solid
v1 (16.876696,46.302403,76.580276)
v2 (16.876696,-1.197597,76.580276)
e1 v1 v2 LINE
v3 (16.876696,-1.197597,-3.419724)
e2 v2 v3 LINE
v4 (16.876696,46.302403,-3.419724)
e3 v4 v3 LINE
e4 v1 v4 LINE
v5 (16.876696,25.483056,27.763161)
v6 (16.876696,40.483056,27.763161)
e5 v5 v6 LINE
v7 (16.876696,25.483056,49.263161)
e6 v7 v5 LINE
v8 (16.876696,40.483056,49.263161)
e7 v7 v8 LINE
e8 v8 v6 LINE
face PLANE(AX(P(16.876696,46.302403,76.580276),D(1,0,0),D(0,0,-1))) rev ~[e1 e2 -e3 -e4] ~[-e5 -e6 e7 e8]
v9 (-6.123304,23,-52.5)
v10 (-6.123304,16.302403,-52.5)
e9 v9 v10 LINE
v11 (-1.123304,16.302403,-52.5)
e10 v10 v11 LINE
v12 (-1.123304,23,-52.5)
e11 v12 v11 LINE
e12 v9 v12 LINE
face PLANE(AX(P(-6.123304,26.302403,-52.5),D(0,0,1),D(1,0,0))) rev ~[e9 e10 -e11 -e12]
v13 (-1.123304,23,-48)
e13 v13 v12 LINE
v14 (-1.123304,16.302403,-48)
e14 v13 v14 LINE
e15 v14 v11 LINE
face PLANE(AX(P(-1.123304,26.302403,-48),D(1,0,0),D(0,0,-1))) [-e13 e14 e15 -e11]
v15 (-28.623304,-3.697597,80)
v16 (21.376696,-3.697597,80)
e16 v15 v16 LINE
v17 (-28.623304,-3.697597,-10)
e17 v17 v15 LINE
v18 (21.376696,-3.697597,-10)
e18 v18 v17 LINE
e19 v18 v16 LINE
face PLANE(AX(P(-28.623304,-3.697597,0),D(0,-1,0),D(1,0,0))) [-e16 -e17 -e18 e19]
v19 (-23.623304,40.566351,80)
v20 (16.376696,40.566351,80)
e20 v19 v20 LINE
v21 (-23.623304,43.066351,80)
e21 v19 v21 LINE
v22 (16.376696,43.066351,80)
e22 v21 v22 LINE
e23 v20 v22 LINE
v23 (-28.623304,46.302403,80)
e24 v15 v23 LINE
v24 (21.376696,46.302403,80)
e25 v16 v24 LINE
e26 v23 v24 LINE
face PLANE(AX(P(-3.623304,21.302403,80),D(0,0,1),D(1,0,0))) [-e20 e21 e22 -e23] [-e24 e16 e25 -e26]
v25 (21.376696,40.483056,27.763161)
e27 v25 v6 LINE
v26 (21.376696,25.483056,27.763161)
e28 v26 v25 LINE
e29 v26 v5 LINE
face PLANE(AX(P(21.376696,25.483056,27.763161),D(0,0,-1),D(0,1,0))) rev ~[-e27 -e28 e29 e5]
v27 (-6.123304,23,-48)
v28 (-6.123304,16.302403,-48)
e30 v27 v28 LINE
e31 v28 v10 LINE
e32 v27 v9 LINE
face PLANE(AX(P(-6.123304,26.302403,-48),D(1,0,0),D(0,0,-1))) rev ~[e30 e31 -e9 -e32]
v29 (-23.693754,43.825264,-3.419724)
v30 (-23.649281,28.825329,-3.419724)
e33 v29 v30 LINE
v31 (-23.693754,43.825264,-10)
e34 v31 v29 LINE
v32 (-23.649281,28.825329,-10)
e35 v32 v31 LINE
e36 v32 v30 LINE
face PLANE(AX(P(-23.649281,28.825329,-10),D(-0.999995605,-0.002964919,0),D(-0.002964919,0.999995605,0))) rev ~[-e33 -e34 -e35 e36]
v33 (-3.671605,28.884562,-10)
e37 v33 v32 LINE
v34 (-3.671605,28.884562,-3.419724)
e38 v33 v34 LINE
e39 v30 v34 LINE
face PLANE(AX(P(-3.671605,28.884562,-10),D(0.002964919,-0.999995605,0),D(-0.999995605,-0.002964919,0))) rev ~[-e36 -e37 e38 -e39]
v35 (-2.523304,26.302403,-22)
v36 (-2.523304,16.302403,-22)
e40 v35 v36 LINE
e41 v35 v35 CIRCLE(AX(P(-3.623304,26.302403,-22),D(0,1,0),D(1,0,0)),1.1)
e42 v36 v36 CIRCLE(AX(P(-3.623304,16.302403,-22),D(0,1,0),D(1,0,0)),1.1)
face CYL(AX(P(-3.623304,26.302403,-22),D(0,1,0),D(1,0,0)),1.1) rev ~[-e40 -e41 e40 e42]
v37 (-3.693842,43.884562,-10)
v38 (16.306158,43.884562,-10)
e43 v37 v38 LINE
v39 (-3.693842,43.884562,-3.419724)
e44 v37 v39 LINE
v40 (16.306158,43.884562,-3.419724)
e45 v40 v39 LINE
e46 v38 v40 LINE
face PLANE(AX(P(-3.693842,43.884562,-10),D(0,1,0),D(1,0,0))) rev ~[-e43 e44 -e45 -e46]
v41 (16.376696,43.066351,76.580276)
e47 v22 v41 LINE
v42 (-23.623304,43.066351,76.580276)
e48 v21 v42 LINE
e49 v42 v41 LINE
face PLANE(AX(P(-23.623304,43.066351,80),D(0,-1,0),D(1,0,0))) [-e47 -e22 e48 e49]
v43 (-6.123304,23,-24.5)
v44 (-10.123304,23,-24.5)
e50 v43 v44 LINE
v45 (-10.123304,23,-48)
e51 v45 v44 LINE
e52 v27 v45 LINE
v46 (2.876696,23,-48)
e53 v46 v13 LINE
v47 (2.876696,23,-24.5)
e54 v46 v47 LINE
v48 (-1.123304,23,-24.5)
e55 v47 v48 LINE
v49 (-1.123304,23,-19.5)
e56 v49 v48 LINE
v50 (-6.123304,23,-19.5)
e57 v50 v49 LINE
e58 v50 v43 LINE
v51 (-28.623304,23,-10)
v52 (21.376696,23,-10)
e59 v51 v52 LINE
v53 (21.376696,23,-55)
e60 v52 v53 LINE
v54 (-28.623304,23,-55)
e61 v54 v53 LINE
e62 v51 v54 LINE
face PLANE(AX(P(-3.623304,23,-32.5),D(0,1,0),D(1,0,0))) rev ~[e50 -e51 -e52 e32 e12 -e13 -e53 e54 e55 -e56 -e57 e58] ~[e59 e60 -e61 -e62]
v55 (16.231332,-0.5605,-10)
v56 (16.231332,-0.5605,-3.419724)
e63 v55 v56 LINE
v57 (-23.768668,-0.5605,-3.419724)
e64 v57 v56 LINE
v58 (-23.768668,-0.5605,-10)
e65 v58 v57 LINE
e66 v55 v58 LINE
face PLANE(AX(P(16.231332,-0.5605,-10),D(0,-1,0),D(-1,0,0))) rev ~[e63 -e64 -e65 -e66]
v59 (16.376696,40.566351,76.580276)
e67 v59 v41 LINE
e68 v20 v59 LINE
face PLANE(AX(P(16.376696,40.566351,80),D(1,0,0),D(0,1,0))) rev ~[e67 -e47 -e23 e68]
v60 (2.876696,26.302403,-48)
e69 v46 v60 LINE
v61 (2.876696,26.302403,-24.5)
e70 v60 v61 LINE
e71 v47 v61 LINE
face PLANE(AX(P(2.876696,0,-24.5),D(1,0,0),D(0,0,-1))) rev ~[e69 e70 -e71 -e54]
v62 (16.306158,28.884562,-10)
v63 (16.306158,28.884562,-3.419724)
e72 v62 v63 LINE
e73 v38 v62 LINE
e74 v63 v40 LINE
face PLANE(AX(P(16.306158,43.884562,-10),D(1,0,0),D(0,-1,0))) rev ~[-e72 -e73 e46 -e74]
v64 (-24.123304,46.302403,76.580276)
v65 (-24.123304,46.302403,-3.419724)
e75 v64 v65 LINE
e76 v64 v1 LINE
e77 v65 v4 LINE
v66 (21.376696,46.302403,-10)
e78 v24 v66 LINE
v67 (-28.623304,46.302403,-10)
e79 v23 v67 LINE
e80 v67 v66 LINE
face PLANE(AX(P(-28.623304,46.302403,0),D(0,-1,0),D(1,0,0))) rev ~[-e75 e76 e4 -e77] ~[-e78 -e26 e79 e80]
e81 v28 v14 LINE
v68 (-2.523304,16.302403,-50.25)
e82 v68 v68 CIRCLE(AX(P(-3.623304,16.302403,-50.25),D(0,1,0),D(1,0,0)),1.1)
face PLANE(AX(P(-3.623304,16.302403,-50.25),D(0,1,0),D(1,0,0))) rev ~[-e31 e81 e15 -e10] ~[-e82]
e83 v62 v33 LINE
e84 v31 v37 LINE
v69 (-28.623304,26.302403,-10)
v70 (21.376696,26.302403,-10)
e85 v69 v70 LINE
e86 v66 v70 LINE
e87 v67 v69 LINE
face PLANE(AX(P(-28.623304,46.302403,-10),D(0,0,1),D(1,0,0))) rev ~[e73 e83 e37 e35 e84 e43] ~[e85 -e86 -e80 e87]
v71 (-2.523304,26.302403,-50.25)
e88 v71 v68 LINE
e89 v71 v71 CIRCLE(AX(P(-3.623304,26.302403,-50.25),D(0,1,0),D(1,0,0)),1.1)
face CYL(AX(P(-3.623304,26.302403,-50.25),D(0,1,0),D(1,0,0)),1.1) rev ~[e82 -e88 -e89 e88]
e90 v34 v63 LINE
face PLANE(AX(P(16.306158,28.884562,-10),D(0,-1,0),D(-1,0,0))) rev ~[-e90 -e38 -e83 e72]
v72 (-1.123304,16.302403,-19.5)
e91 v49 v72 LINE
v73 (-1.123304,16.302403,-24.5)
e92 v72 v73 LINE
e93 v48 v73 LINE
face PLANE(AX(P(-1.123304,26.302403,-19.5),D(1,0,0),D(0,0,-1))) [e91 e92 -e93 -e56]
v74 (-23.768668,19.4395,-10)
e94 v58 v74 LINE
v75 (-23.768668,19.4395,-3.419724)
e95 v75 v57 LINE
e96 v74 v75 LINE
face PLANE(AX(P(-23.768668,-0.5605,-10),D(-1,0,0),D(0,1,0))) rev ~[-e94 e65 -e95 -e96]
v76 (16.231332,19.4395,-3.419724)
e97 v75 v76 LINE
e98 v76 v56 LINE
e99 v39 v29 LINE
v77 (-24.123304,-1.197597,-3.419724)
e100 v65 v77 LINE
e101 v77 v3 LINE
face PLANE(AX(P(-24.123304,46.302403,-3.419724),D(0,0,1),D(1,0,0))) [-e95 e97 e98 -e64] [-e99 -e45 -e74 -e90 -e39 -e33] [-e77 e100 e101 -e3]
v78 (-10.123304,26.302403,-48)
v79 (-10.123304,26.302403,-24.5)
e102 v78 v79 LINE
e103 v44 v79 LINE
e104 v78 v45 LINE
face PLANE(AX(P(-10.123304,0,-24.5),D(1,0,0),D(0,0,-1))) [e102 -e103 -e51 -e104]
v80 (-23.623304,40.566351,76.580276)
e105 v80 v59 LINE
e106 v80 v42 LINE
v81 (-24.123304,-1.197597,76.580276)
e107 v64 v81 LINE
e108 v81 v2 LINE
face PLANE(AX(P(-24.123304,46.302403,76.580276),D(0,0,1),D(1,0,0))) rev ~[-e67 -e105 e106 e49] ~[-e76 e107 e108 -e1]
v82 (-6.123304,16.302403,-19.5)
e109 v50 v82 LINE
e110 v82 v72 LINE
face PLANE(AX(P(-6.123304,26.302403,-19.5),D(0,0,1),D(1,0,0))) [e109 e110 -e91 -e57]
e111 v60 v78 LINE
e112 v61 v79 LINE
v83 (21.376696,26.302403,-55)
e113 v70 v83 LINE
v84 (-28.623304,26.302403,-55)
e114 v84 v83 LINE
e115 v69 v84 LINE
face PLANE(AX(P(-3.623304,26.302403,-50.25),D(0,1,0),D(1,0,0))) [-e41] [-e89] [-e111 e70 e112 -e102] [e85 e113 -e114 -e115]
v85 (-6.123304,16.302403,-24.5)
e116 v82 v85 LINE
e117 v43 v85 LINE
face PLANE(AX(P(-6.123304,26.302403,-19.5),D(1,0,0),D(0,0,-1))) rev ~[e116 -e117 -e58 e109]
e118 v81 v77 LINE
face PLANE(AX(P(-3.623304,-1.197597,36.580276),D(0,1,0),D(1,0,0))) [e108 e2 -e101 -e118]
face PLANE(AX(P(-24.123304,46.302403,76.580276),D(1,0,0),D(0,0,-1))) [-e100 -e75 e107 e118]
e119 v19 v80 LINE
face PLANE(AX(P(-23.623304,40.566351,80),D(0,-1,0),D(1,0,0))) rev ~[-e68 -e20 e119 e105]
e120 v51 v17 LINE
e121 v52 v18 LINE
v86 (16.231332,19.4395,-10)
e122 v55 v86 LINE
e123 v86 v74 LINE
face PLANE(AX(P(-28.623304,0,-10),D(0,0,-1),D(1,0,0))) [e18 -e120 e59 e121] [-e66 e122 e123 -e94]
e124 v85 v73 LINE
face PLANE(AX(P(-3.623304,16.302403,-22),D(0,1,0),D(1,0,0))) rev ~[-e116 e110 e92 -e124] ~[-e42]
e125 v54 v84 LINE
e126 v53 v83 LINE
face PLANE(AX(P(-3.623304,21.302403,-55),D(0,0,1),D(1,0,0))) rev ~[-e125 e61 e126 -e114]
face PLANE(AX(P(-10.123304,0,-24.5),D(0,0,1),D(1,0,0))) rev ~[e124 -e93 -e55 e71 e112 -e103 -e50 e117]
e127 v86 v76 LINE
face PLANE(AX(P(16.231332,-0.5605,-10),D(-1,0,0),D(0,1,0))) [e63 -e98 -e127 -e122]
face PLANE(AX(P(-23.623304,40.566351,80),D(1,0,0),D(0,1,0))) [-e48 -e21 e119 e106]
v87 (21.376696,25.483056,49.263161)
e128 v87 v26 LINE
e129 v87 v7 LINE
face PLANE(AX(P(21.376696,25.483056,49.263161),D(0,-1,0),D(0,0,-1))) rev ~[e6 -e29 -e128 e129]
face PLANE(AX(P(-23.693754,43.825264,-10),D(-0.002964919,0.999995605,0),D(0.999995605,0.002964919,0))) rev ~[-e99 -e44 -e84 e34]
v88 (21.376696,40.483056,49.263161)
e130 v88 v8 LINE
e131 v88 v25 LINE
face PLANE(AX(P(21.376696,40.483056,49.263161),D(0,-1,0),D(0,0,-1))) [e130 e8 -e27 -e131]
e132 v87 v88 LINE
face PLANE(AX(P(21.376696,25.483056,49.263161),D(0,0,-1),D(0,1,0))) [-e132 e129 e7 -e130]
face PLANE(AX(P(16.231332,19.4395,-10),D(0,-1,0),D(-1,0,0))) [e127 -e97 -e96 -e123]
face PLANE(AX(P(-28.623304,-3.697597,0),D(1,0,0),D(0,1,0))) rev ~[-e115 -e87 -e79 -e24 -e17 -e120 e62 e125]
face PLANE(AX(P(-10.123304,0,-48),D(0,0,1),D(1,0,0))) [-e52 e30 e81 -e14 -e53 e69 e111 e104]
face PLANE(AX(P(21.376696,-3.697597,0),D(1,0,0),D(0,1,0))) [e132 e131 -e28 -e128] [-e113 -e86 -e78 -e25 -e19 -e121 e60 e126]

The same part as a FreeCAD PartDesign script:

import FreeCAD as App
import Part
import Sketcher

V = App.Vector


def add_polygon(sketch, points):
    """Adds a closed chain of lines whose ends are joined by coincident constraints."""
    first, n = sketch.GeometryCount, len(points)
    for a, b in zip(points, points[1:] + points[:1]):
        sketch.addGeometry(Part.LineSegment(App.Vector(*a, 0), App.Vector(*b, 0)), False)
    for i in range(n):
        sketch.addConstraint(Sketcher.Constraint("Coincident", first + i, 2, first + (i + 1) % n, 1))

doc = App.newDocument("Part")
body = doc.addObject("PartDesign::Body", "Body")

sketch1 = doc.addObject("Sketcher::SketchObject", "Sketch")
body.addObject(sketch1)
sketch1.AttachmentSupport = (doc.XY_Plane, [""])
sketch1.MapMode = "FlatFace"
add_polygon(sketch1, [(-29, 46), (-29, -4), (21, -4), (21, 46)])
sketch1.addConstraint(Sketcher.Constraint("Vertical", 0))
sketch1.addConstraint(Sketcher.Constraint("Horizontal", 1))
sketch1.addConstraint(Sketcher.Constraint("Vertical", 2))
sketch1.addConstraint(Sketcher.Constraint("Horizontal", 3))
sketch1.addConstraint(Sketcher.Constraint("Equal", 3, 0))
sketch1.addConstraint(Sketcher.Constraint("DistanceX", 1, 1, 1, 2, 50.0))
sketch1.addConstraint(Sketcher.Constraint("DistanceX", 0, 2, -1, 1, 28.623304))
sketch1.addConstraint(Sketcher.Constraint("DistanceY", 0, 2, -1, 1, 3.697597))
pad1 = doc.addObject("PartDesign::Pad", "Pad")
body.addObject(pad1)
pad1.Profile = sketch1
pad1.Type = "TwoLengths"
pad1.Length = 80
pad1.Length2 = 55

sketch2 = doc.addObject("Sketcher::SketchObject", "Sketch001")
body.addObject(sketch2)
sketch2.AttachmentSupport = (doc.XZ_Plane, [""])
sketch2.MapMode = "FlatFace"
sketch2.AttachmentOffset = App.Placement(V(0, 0, -46.302403), App.Rotation())
add_polygon(sketch2, [(-24, -3), (-24, 77), (17, 77), (17, -3)])
sketch2.addConstraint(Sketcher.Constraint("Vertical", 0))
sketch2.addConstraint(Sketcher.Constraint("Horizontal", 1))
sketch2.addConstraint(Sketcher.Constraint("Vertical", 2))
sketch2.addConstraint(Sketcher.Constraint("Horizontal", 3))
sketch2.addConstraint(Sketcher.Constraint("DistanceX", 1, 1, 1, 2, 41.0))
sketch2.addConstraint(Sketcher.Constraint("DistanceY", 0, 1, 0, 2, 80.0))
sketch2.addConstraint(Sketcher.Constraint("DistanceX", 0, 2, -1, 1, 24.123304))
sketch2.addConstraint(Sketcher.Constraint("DistanceY", -1, 1, 0, 2, 76.580276))
pocket1 = doc.addObject("PartDesign::Pocket", "Pocket")
body.addObject(pocket1)
pocket1.Profile = sketch2
pocket1.Length = 47.5
pocket1.Reversed = True

sketch3 = doc.addObject("Sketcher::SketchObject", "Sketch002")
body.addObject(sketch3)
sketch3.AttachmentSupport = (doc.XZ_Plane, [""])
sketch3.MapMode = "FlatFace"
add_polygon(sketch3, [(-10, -48), (-10, -24), (3, -24), (3, -48)])
sketch3.addConstraint(Sketcher.Constraint("Vertical", 0))
sketch3.addConstraint(Sketcher.Constraint("Horizontal", 1))
sketch3.addConstraint(Sketcher.Constraint("Vertical", 2))
sketch3.addConstraint(Sketcher.Constraint("Horizontal", 3))
sketch3.addConstraint(Sketcher.Constraint("DistanceX", 1, 1, 1, 2, 13.0))
sketch3.addConstraint(Sketcher.Constraint("DistanceY", 0, 1, 0, 2, 23.5))
sketch3.addConstraint(Sketcher.Constraint("DistanceY", 2, 2, -1, 1, 48.0))
sketch3.addConstraint(Sketcher.Constraint("DistanceX", 0, 2, -1, 1, 10.123304))
pocket2 = doc.addObject("PartDesign::Pocket", "Pocket001")
body.addObject(pocket2)
pocket2.Profile = sketch3
pocket2.Type = "ThroughAll"
pocket2.Midplane = True

sketch4 = doc.addObject("Sketcher::SketchObject", "Sketch003")
body.addObject(sketch4)
sketch4.AttachmentSupport = (doc.XZ_Plane, [""])
sketch4.MapMode = "FlatFace"
sketch4.AttachmentOffset = App.Placement(V(0, 0, -46.302403), App.Rotation())
add_polygon(sketch4, [(-29, -55), (-29, -10), (21, -10), (21, -55)])
sketch4.addConstraint(Sketcher.Constraint("Vertical", 0))
sketch4.addConstraint(Sketcher.Constraint("Horizontal", 1))
sketch4.addConstraint(Sketcher.Constraint("Vertical", 2))
sketch4.addConstraint(Sketcher.Constraint("Horizontal", 3))
sketch4.addConstraint(Sketcher.Constraint("DistanceX", 1, 1, 1, 2, 50.0))
sketch4.addConstraint(Sketcher.Constraint("DistanceY", 0, 1, 0, 2, 45.0))
sketch4.addConstraint(Sketcher.Constraint("DistanceY", 0, 2, -1, 1, 10.0))
sketch4.addConstraint(Sketcher.Constraint("DistanceX", 0, 2, -1, 1, 28.623304))
pocket3 = doc.addObject("PartDesign::Pocket", "Pocket002")
body.addObject(pocket3)
pocket3.Profile = sketch4
pocket3.Length = 20
pocket3.Reversed = True

sketch5 = doc.addObject("Sketcher::SketchObject", "Sketch004")
body.addObject(sketch5)
sketch5.AttachmentSupport = (doc.XZ_Plane, [""])
sketch5.MapMode = "FlatFace"
add_polygon(sketch5, [(-29, -55), (-29, -10), (21, -10), (21, -55)])
sketch5.addConstraint(Sketcher.Constraint("Vertical", 0))
sketch5.addConstraint(Sketcher.Constraint("Horizontal", 1))
sketch5.addConstraint(Sketcher.Constraint("Vertical", 2))
sketch5.addConstraint(Sketcher.Constraint("Horizontal", 3))
sketch5.addConstraint(Sketcher.Constraint("DistanceX", 1, 1, 1, 2, 50.0))
sketch5.addConstraint(Sketcher.Constraint("DistanceY", 0, 1, 0, 2, 45.0))
sketch5.addConstraint(Sketcher.Constraint("DistanceY", 0, 2, -1, 1, 10.0))
sketch5.addConstraint(Sketcher.Constraint("DistanceX", 0, 2, -1, 1, 28.623304))
pocket4 = doc.addObject("PartDesign::Pocket", "Pocket003")
body.addObject(pocket4)
pocket4.Profile = sketch5
pocket4.Type = "TwoLengths"
pocket4.Length = 23
pocket4.Length2 = 10

sketch6 = doc.addObject("Sketcher::SketchObject", "Sketch005")
body.addObject(sketch6)
sketch6.AttachmentSupport = (doc.XY_Plane, [""])
sketch6.MapMode = "FlatFace"
sketch6.AttachmentOffset = App.Placement(V(0, 0, -10), App.Rotation())
add_polygon(sketch6, [(-4, 44), (16, 44), (16, 29), (-4, 29), (-24, 29), (-24, 44)])
sketch6.addConstraint(Sketcher.Constraint("Horizontal", 0))
sketch6.addConstraint(Sketcher.Constraint("Vertical", 1))
sketch6.addConstraint(Sketcher.Constraint("Horizontal", 2))
sketch6.addConstraint(Sketcher.Constraint("Perpendicular", 3, 4))
sketch6.addConstraint(Sketcher.Constraint("Perpendicular", 4, 5))
sketch6.addConstraint(Sketcher.Constraint("DistanceX", 0, 1, 0, 2, 20.0))
sketch6.addConstraint(Sketcher.Constraint("DistanceY", 1, 2, 1, 1, 15.0))
sketch6.addConstraint(Sketcher.Constraint("Distance", 5, 20.0))
sketch6.addConstraint(Sketcher.Constraint("DistanceY", 2, 2, 4, 2, 14.940702))
sketch6.addConstraint(Sketcher.Constraint("DistanceX", 2, 2, 2, 1, 19.977763))
sketch6.addConstraint(Sketcher.Constraint("DistanceY", -1, 1, 0, 2, 43.884562))
sketch6.addConstraint(Sketcher.Constraint("DistanceX", 3, 2, -1, 1, 23.649281))
pocket5 = doc.addObject("PartDesign::Pocket", "Pocket004")
body.addObject(pocket5)
pocket5.Profile = sketch6
pocket5.Length = 10
pocket5.Reversed = True

sketch7 = doc.addObject("Sketcher::SketchObject", "Sketch006")
body.addObject(sketch7)
sketch7.AttachmentSupport = (doc.XY_Plane, [""])
sketch7.MapMode = "FlatFace"
sketch7.AttachmentOffset = App.Placement(V(0, 0, -10), App.Rotation())
add_polygon(sketch7, [(16, 19), (16, -1), (-24, -1), (-24, 19)])
sketch7.addConstraint(Sketcher.Constraint("Vertical", 0))
sketch7.addConstraint(Sketcher.Constraint("Horizontal", 1))
sketch7.addConstraint(Sketcher.Constraint("Vertical", 2))
sketch7.addConstraint(Sketcher.Constraint("Horizontal", 3))
sketch7.addConstraint(Sketcher.Constraint("DistanceX", 1, 2, 1, 1, 40.0))
sketch7.addConstraint(Sketcher.Constraint("DistanceY", 0, 2, 0, 1, 20.0))
sketch7.addConstraint(Sketcher.Constraint("DistanceY", 0, 2, -1, 1, 0.5605))
sketch7.addConstraint(Sketcher.Constraint("DistanceX", -1, 1, 0, 2, 16.231332))
pocket6 = doc.addObject("PartDesign::Pocket", "Pocket005")
body.addObject(pocket6)
pocket6.Profile = sketch7
pocket6.Length = 10
pocket6.Reversed = True

sketch8 = doc.addObject("Sketcher::SketchObject", "Sketch007")
body.addObject(sketch8)
sketch8.AttachmentSupport = (doc.XY_Plane, [""])
sketch8.MapMode = "FlatFace"
sketch8.AttachmentOffset = App.Placement(V(0, 0, 80), App.Rotation())
add_polygon(sketch8, [(-23.6, 43.1), (-23.6, 40.6), (16.4, 40.6), (16.4, 43.1)])
sketch8.addConstraint(Sketcher.Constraint("Vertical", 0))
sketch8.addConstraint(Sketcher.Constraint("Horizontal", 1))
sketch8.addConstraint(Sketcher.Constraint("Vertical", 2))
sketch8.addConstraint(Sketcher.Constraint("Horizontal", 3))
sketch8.addConstraint(Sketcher.Constraint("DistanceX", 1, 1, 1, 2, 40.0))
sketch8.addConstraint(Sketcher.Constraint("DistanceY", 0, 2, 0, 1, 2.5))
sketch8.addConstraint(Sketcher.Constraint("DistanceY", -1, 1, 0, 2, 40.566351))
sketch8.addConstraint(Sketcher.Constraint("DistanceX", 0, 2, -1, 1, 23.623304))
pocket7 = doc.addObject("PartDesign::Pocket", "Pocket006")
body.addObject(pocket7)
pocket7.Profile = sketch8
pocket7.Length = 10

sketch9 = doc.addObject("Sketcher::SketchObject", "Sketch008")
body.addObject(sketch9)
sketch9.AttachmentSupport = (doc.XZ_Plane, [""])
sketch9.MapMode = "FlatFace"
sketch9.AttachmentOffset = App.Placement(V(0, 0, -26.302403), App.Rotation())
add_polygon(sketch9, [(-6.1, -52.5), (-6.1, -48), (-1.1, -48), (-1.1, -52.5)])
add_polygon(sketch9, [(-6.1, -24.5), (-6.1, -19.5), (-1.1, -19.5), (-1.1, -24.5)])
sketch9.addConstraint(Sketcher.Constraint("Vertical", 0))
sketch9.addConstraint(Sketcher.Constraint("Horizontal", 1))
sketch9.addConstraint(Sketcher.Constraint("Vertical", 2))
sketch9.addConstraint(Sketcher.Constraint("Horizontal", 3))
sketch9.addConstraint(Sketcher.Constraint("Vertical", 4))
sketch9.addConstraint(Sketcher.Constraint("Horizontal", 5))
sketch9.addConstraint(Sketcher.Constraint("Vertical", 6))
sketch9.addConstraint(Sketcher.Constraint("Horizontal", 7))
sketch9.addConstraint(Sketcher.Constraint("Vertical", 3, 2, 4, 2))
sketch9.addConstraint(Sketcher.Constraint("Vertical", 2, 2, 5, 2))
sketch9.addConstraint(Sketcher.Constraint("Equal", 7, 4))
sketch9.addConstraint(Sketcher.Constraint("DistanceX", 1, 1, 1, 2, 5.0))
sketch9.addConstraint(Sketcher.Constraint("DistanceY", 0, 1, 0, 2, 4.5))
sketch9.addConstraint(Sketcher.Constraint("DistanceY", 0, 2, -1, 1, 48.0))
sketch9.addConstraint(Sketcher.Constraint("DistanceY", 3, 2, 4, 2, 33.0))
sketch9.addConstraint(Sketcher.Constraint("DistanceX", 0, 2, -1, 1, 6.123304))
pad2 = doc.addObject("PartDesign::Pad", "Pad001")
body.addObject(pad2)
pad2.Profile = sketch9
pad2.Length = 10

sketch10 = doc.addObject("Sketcher::SketchObject", "Sketch009")
body.addObject(sketch10)
sketch10.AttachmentSupport = (doc.YZ_Plane, [""])
sketch10.MapMode = "FlatFace"
sketch10.AttachmentOffset = App.Placement(V(0, 0, 21.376696), App.Rotation())
add_polygon(sketch10, [(40, 49), (25, 49), (25, 28), (40, 28)])
sketch10.addConstraint(Sketcher.Constraint("Horizontal", 0))
sketch10.addConstraint(Sketcher.Constraint("Vertical", 1))
sketch10.addConstraint(Sketcher.Constraint("Horizontal", 2))
sketch10.addConstraint(Sketcher.Constraint("Vertical", 3))
sketch10.addConstraint(Sketcher.Constraint("DistanceX", 0, 2, 0, 1, 15.0))
sketch10.addConstraint(Sketcher.Constraint("DistanceY", 1, 2, 1, 1, 21.5))
sketch10.addConstraint(Sketcher.Constraint("DistanceY", -1, 1, 0, 2, 49.263161))
sketch10.addConstraint(Sketcher.Constraint("DistanceX", -1, 1, 0, 2, 25.483056))
pocket8 = doc.addObject("PartDesign::Pocket", "Pocket007")
body.addObject(pocket8)
pocket8.Profile = sketch10
pocket8.Length = 15

sketch11 = doc.addObject("Sketcher::SketchObject", "Sketch010")
body.addObject(sketch11)
sketch11.AttachmentSupport = (doc.XZ_Plane, [""])
sketch11.MapMode = "FlatFace"
sketch11.AttachmentOffset = App.Placement(V(0, 0, -26.302403), App.Rotation())
sketch11.addGeometry(Part.Circle(V(-3.6, -50.2, 0), V(0, 0, 1), 1.1), False)
sketch11.addGeometry(Part.Circle(V(-3.6, -22, 0), V(0, 0, 1), 1.1), False)
sketch11.addConstraint(Sketcher.Constraint("Equal", 0, 1))
sketch11.addConstraint(Sketcher.Constraint("Vertical", 0, 3, 1, 3))
sketch11.addConstraint(Sketcher.Constraint("Diameter", 0, 2.2))
sketch11.addConstraint(Sketcher.Constraint("DistanceY", 1, 3, -1, 1, 22.0))
sketch11.addConstraint(Sketcher.Constraint("DistanceY", 0, 3, -1, 1, 50.25))
sketch11.addConstraint(Sketcher.Constraint("DistanceX", 0, 3, -1, 1, 3.623304))
pocket9 = doc.addObject("PartDesign::Pocket", "Pocket008")
body.addObject(pocket9)
pocket9.Profile = sketch11
pocket9.Length = 12.4
pocket9.Reversed = True

doc.recompute()
